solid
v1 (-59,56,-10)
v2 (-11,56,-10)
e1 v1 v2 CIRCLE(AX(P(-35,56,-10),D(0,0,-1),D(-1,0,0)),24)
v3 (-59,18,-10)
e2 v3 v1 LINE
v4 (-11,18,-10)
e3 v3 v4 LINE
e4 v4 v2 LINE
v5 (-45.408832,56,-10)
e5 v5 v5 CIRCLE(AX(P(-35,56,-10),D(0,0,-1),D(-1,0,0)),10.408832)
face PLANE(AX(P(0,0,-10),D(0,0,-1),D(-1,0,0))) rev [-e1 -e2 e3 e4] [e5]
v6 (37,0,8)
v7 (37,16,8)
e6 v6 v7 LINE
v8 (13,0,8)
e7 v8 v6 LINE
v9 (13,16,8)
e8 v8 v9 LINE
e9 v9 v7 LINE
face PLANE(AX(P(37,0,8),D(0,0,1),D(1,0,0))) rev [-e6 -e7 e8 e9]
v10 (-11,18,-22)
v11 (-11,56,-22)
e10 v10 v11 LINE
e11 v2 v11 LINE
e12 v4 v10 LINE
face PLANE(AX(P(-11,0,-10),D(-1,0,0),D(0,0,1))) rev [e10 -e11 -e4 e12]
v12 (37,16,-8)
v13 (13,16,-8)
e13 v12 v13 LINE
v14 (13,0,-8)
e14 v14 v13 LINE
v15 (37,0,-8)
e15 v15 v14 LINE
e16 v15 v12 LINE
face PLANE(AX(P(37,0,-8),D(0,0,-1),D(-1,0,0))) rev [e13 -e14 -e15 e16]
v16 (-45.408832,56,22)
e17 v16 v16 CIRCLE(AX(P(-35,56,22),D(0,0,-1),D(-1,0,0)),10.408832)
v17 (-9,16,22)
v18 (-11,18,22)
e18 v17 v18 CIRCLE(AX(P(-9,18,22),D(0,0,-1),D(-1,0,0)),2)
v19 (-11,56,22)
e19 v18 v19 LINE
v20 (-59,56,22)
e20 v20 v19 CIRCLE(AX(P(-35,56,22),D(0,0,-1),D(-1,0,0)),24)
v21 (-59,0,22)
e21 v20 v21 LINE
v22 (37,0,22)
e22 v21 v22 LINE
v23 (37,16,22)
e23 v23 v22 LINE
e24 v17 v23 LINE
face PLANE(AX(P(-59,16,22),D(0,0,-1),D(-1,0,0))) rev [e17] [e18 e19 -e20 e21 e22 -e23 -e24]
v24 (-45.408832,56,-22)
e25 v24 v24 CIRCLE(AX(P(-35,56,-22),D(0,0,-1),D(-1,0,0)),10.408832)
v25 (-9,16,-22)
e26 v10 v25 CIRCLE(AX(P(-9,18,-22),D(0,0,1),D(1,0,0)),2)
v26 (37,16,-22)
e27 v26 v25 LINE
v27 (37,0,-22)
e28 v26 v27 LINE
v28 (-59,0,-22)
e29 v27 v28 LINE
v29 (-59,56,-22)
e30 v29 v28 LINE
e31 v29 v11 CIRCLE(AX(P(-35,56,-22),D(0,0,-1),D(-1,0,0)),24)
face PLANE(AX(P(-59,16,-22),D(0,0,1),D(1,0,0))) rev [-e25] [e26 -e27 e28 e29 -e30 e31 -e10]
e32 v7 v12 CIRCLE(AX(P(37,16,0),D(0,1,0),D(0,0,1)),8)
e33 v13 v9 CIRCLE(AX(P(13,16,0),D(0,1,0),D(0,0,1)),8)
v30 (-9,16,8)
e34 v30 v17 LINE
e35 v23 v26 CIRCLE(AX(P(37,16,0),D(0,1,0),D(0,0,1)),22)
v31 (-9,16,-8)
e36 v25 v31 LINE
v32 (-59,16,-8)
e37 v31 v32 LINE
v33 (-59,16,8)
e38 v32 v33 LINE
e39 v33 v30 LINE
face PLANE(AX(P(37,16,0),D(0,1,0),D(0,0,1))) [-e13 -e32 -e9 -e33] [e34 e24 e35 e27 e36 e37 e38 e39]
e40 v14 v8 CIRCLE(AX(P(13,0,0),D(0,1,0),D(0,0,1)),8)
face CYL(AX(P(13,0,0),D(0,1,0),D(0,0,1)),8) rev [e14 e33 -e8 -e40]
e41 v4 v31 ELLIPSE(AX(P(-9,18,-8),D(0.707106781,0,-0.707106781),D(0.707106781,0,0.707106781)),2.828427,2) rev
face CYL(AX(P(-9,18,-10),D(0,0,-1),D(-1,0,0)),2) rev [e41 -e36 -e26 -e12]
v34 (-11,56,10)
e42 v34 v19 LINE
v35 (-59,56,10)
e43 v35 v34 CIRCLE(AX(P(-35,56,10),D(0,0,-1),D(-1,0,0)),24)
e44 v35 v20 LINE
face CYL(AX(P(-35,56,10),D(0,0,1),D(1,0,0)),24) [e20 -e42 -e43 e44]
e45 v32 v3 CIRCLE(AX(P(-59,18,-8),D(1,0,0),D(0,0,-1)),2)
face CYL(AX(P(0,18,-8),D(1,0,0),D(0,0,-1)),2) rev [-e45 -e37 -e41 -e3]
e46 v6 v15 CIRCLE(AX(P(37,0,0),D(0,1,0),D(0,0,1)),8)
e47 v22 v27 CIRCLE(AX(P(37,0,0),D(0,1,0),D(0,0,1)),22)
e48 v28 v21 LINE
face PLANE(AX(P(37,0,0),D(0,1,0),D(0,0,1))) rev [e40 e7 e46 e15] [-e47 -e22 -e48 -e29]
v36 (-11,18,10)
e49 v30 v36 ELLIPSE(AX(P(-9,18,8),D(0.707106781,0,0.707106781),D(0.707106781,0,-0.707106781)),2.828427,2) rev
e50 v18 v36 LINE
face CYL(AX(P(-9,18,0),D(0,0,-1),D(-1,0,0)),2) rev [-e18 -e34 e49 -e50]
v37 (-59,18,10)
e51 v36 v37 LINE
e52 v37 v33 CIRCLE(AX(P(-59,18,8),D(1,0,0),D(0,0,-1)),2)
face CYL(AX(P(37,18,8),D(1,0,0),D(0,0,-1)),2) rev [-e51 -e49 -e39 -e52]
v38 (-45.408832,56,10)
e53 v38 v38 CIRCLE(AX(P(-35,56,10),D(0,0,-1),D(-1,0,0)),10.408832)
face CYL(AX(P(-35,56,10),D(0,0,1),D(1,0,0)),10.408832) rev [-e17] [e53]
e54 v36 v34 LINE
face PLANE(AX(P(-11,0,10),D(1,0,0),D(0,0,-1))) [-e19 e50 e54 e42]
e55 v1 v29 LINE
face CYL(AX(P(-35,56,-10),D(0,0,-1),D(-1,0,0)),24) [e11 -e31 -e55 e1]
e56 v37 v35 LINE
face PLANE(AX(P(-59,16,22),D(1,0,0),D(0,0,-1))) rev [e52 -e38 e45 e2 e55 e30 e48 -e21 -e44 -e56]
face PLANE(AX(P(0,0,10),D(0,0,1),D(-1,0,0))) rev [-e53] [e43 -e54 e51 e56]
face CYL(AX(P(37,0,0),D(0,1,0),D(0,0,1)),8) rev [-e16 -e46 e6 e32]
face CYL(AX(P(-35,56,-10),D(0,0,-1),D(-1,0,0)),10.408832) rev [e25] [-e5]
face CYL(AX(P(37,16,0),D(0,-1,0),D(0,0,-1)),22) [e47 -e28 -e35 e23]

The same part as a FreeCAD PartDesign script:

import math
import FreeCAD as App
import Part
import Sketcher

V = App.Vector
Q = App.Units.Quantity


def edges_at(feature, points):
    """Names of the edges that pass closest to the given points."""
    edges = feature.Shape.Edges
    near = lambda p: min(range(len(edges)), key=lambda i: edges[i].distToShape(Part.Vertex(*p))[0])
    return sorted({f"Edge{near(p) + 1}" for p in points})

doc = App.newDocument("Part")
body = doc.addObject("PartDesign::Body", "Body")

# Sketch on XZ plane
sketch1 = body.newObject("Sketcher::SketchObject", "Sketch")
sketch1.AttachmentSupport = (doc.getObject("XZ_Plane"), [""])
sketch1.MapMode = "FlatFace"
sketch1.addGeometry([
    Part.LineSegment(V(-59, 22, 0), V(37, 22, 0)),
    Part.ArcOfCircle(Part.Circle(V(37, 0, 0), V(0, 0, 1), 22), math.radians(-90), math.radians(90)),
    Part.LineSegment(V(37, -22, 0), V(-59, -22, 0)),
    Part.LineSegment(V(-59, -22, 0), V(-59, 22, 0)),
], False)
sketch1.addConstraint([
    Sketcher.Constraint("Tangent", 0, 2, 1, 2),
    Sketcher.Constraint("Tangent", 1, 1, 2, 1),
    Sketcher.Constraint("Coincident", 2, 2, 3, 1),
    Sketcher.Constraint("Coincident", 3, 2, 0, 1),
    Sketcher.Constraint("Horizontal", 0),
    Sketcher.Constraint("Horizontal", 2),
    Sketcher.Constraint("Vertical", 3),
    Sketcher.Constraint("PointOnObject", 1, 3, -1),
    Sketcher.Constraint("Radius", 1, Q("22 mm")),
    Sketcher.Constraint("DistanceX", 0, 1, 0, 2, Q("96 mm")),
    Sketcher.Constraint("DistanceX", -1, 1, 1, 3, Q("37 mm")),
])
pad1 = body.newObject("PartDesign::Pad", "Pad")
pad1.Profile = sketch1
pad1.Length = 16
pad1.Reversed = True

# Sketch on XZ plane
sketch2 = body.newObject("Sketcher::SketchObject", "Sketch001")
sketch2.AttachmentSupport = (doc.getObject("XZ_Plane"), [""])
sketch2.MapMode = "FlatFace"
sketch2.AttachmentOffset = App.Placement(V(0, 0, -16), App.Rotation())
sketch2.addGeometry([
    Part.LineSegment(V(13, 8, 0), V(37, 8, 0)),
    Part.ArcOfCircle(Part.Circle(V(37, 0, 0), V(0, 0, 1), 8), math.radians(-90), math.radians(90)),
    Part.LineSegment(V(37, -8, 0), V(13, -8, 0)),
    Part.ArcOfCircle(Part.Circle(V(13, 0, 0), V(0, 0, 1), 8), math.radians(90), math.radians(270)),
], False)
sketch2.addConstraint([
    Sketcher.Constraint("Tangent", 0, 2, 1, 2),
    Sketcher.Constraint("Tangent", 1, 1, 2, 1),
    Sketcher.Constraint("Tangent", 2, 2, 3, 2),
    Sketcher.Constraint("Tangent", 3, 1, 0, 1),
    Sketcher.Constraint("Horizontal", 0),
    Sketcher.Constraint("Horizontal", 2),
    Sketcher.Constraint("PointOnObject", 1, 3, -1),
    Sketcher.Constraint("Radius", 1, Q("8 mm")),
    Sketcher.Constraint("DistanceX", 0, 1, 0, 2, Q("24 mm")),
    Sketcher.Constraint("DistanceX", -1, 1, 1, 3, Q("37 mm")),
])
pocket1 = body.newObject("PartDesign::Pocket", "Pocket")
pocket1.Profile = sketch2
pocket1.Length = 16
pocket1.Reversed = True

# Sketch on XY plane
sketch3 = body.newObject("Sketcher::SketchObject", "Sketch002")
sketch3.AttachmentSupport = (doc.getObject("XY_Plane"), [""])
sketch3.MapMode = "FlatFace"
sketch3.AttachmentOffset = App.Placement(V(0, 0, -22), App.Rotation())
sketch3.addGeometry([
    Part.LineSegment(V(-59, 16, 0), V(-59, 56, 0)),  # 0
    Part.ArcOfCircle(Part.Circle(V(-35, 56, 0), V(0, 0, 1), 24), math.radians(0), math.radians(180)),  # 1
    Part.LineSegment(V(-11, 56, 0), V(-11, 16, 0)),  # 2
    Part.LineSegment(V(-11, 16, 0), V(-59, 16, 0)),  # 3
    Part.Circle(V(-35, 56, 0), V(0, 0, 1), 10),  # 4
], False)
sketch3.addConstraint([
    Sketcher.Constraint("Tangent", 0, 2, 1, 2),
    Sketcher.Constraint("Tangent", 1, 1, 2, 1),
    Sketcher.Constraint("Coincident", 2, 2, 3, 1),
    Sketcher.Constraint("Coincident", 3, 2, 0, 1),
    Sketcher.Constraint("Vertical", 0),
    Sketcher.Constraint("Vertical", 2),
    Sketcher.Constraint("Horizontal", 3),
    Sketcher.Constraint("Coincident", 4, 3, 1, 3),
    Sketcher.Constraint("Radius", 1, Q("24 mm")),
    Sketcher.Constraint("DistanceY", 0, 1, 0, 2, Q("40 mm")),
    Sketcher.Constraint("DistanceX", 1, 3, -1, 1, Q("35 mm")),
    Sketcher.Constraint("DistanceY", -1, 1, 1, 3, Q("56 mm")),
    Sketcher.Constraint("Diameter", 4, Q("20.817663 mm")),
])
pad2 = body.newObject("PartDesign::Pad", "Pad001")
pad2.Profile = sketch3
pad2.Length = 12
doc.recompute()

mirrored = body.newObject("PartDesign::Mirrored", "Mirrored")
mirrored.Originals = [pad2]
mirrored.MirrorPlane = (doc.getObject("XY_Plane"), [""])
body.Tip = mirrored
doc.recompute()

fillet = body.newObject("PartDesign::Fillet", "Fillet")
fillet.Base = (mirrored, edges_at(mirrored, [
    (-11, 16, -16),
    (-35, 16, -10),
    (-35, 16, 10),
    (-11, 16, 16),
]))
fillet.Radius = 2

doc.recompute()
